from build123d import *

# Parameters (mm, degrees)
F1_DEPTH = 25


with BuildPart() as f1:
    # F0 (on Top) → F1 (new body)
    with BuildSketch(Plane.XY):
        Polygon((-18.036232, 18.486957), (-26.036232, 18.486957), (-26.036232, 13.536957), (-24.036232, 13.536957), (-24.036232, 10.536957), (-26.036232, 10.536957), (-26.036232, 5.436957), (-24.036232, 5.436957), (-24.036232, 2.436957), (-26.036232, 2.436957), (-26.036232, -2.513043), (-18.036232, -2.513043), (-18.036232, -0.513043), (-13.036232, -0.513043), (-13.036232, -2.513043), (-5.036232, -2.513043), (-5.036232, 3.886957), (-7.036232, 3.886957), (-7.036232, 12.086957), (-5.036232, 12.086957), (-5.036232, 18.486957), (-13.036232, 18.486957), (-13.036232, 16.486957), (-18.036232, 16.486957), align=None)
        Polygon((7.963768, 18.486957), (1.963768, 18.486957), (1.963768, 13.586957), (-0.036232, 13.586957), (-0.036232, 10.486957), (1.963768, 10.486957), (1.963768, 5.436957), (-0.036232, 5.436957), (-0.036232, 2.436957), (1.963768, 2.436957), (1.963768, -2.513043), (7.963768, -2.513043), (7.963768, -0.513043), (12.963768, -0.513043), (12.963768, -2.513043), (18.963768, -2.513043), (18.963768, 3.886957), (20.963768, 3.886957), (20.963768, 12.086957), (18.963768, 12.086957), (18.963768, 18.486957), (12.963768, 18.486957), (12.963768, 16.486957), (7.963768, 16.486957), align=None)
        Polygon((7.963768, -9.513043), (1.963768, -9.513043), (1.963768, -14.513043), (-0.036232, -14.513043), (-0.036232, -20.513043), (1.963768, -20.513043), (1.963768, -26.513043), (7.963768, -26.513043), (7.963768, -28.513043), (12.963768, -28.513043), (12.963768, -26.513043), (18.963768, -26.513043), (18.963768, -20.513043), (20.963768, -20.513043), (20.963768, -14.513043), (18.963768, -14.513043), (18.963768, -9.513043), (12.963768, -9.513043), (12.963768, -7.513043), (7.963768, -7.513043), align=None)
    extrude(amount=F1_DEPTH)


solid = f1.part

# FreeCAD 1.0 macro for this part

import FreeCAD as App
import Part
import Sketcher
from FreeCAD import Vector
Q = App.Units.Quantity


def add_polygon(sketch, points):
    """Adds a closed chain of lines whose ends are joined by coincident constraints."""
    first, n = sketch.GeometryCount, len(points)
    for a, b in zip(points, points[1:] + points[:1]):
        sketch.addGeometry(Part.LineSegment(App.Vector(*a, 0), App.Vector(*b, 0)), False)
    for i in range(n):
        sketch.addConstraint(Sketcher.Constraint("Coincident", first + i, 2, first + (i + 1) % n, 1))

doc = App.newDocument("Part")
params = doc.addObject("Spreadsheet::Sheet", "Params")
for row, (alias, value) in enumerate([
    ("sketch1_width", "8 mm"),
    ("sketch1_width2", "2 mm"),
    ("sketch1_width3", "5 mm"),
    ("sketch1_width4", "6 mm"),
    ("sketch1_height", "3 mm"),
    ("pad1_length", "25 mm"),
], start=1):
    params.set(f"A{row}", alias)
    params.set(f"B{row}", "=" + value)
    params.setAlias(f"B{row}", alias)

body = doc.addObject("PartDesign::Body", "Body")
body.AllowCompound = True

sketch1 = body.newObject("Sketcher::SketchObject", "Sketch")
sketch1.AttachmentSupport = (doc.getObject("XY_Plane"), [""])
sketch1.MapMode = "FlatFace"
add_polygon(sketch1, [(-18, 18.5), (-26, 18.5), (-26, 13.5), (-24, 13.5), (-24, 10.5), (-26, 10.5), (-26, 5.4), (-24, 5.4), (-24, 2.4), (-26, 2.4), (-26, -2.5), (-18, -2.5), (-18, -0.5), (-13, -0.5), (-13, -2.5), (-5, -2.5), (-5, 3.9), (-7, 3.9), (-7, 12.1), (-5, 12.1), (-5, 18.5), (-13, 18.5), (-13, 16.5), (-18, 16.5)])
add_polygon(sketch1, [(8, 18.5), (2, 18.5), (2, 13.6), (0, 13.6), (0, 10.5), (2, 10.5), (2, 5.4), (0, 5.4), (0, 2.4), (2, 2.4), (2, -2.5), (8, -2.5), (8, -0.5), (13, -0.5), (13, -2.5), (19, -2.5), (19, 3.9), (21, 3.9), (21, 12.1), (19, 12.1), (19, 18.5), (13, 18.5), (13, 16.5), (8, 16.5)])
add_polygon(sketch1, [(8, -9.5), (2, -9.5), (2, -14.5), (0, -14.5), (0, -20.5), (2, -20.5), (2, -26.5), (8, -26.5), (8, -28.5), (13, -28.5), (13, -26.5), (19, -26.5), (19, -20.5), (21, -20.5), (21, -14.5), (19, -14.5), (19, -9.5), (13, -9.5), (13, -7.5), (8, -7.5)])
sketch1.addConstraint(Sketcher.Constraint("Horizontal", 0))
sketch1.addConstraint(Sketcher.Constraint("Vertical", 1))
sketch1.addConstraint(Sketcher.Constraint("Horizontal", 2))
sketch1.addConstraint(Sketcher.Constraint("Vertical", 3))
sketch1.addConstraint(Sketcher.Constraint("Horizontal", 4))
sketch1.addConstraint(Sketcher.Constraint("Vertical", 5))
sketch1.addConstraint(Sketcher.Constraint("Horizontal", 6))
sketch1.addConstraint(Sketcher.Constraint("Vertical", 7))
sketch1.addConstraint(Sketcher.Constraint("Horizontal", 8))
sketch1.addConstraint(Sketcher.Constraint("Vertical", 9))
sketch1.addConstraint(Sketcher.Constraint("Horizontal", 10))
sketch1.addConstraint(Sketcher.Constraint("Vertical", 11))
sketch1.addConstraint(Sketcher.Constraint("Horizontal", 12))
sketch1.addConstraint(Sketcher.Constraint("Vertical", 13))
sketch1.addConstraint(Sketcher.Constraint("Horizontal", 14))
sketch1.addConstraint(Sketcher.Constraint("Vertical", 15))
sketch1.addConstraint(Sketcher.Constraint("Horizontal", 16))
sketch1.addConstraint(Sketcher.Constraint("Vertical", 17))
sketch1.addConstraint(Sketcher.Constraint("Horizontal", 18))
sketch1.addConstraint(Sketcher.Constraint("Vertical", 19))
sketch1.addConstraint(Sketcher.Constraint("Horizontal", 20))
sketch1.addConstraint(Sketcher.Constraint("Vertical", 21))
sketch1.addConstraint(Sketcher.Constraint("Horizontal", 22))
sketch1.addConstraint(Sketcher.Constraint("Vertical", 23))
sketch1.addConstraint(Sketcher.Constraint("Horizontal", 24))
sketch1.addConstraint(Sketcher.Constraint("Vertical", 25))
sketch1.addConstraint(Sketcher.Constraint("Horizontal", 26))
sketch1.addConstraint(Sketcher.Constraint("Vertical", 27))
sketch1.addConstraint(Sketcher.Constraint("Horizontal", 28))
sketch1.addConstraint(Sketcher.Constraint("Vertical", 29))
sketch1.addConstraint(Sketcher.Constraint("Horizontal", 30))
sketch1.addConstraint(Sketcher.Constraint("Vertical", 31))
sketch1.addConstraint(Sketcher.Constraint("Horizontal", 32))
sketch1.addConstraint(Sketcher.Constraint("Vertical", 33))
sketch1.addConstraint(Sketcher.Constraint("Horizontal", 34))
sketch1.addConstraint(Sketcher.Constraint("Vertical", 35))
sketch1.addConstraint(Sketcher.Constraint("Horizontal", 36))
sketch1.addConstraint(Sketcher.Constraint("Vertical", 37))
sketch1.addConstraint(Sketcher.Constraint("Horizontal", 38))
sketch1.addConstraint(Sketcher.Constraint("Vertical", 39))
sketch1.addConstraint(Sketcher.Constraint("Horizontal", 40))
sketch1.addConstraint(Sketcher.Constraint("Vertical", 41))
sketch1.addConstraint(Sketcher.Constraint("Horizontal", 42))
sketch1.addConstraint(Sketcher.Constraint("Vertical", 43))
sketch1.addConstraint(Sketcher.Constraint("Horizontal", 44))
sketch1.addConstraint(Sketcher.Constraint("Vertical", 45))
sketch1.addConstraint(Sketcher.Constraint("Horizontal", 46))
sketch1.addConstraint(Sketcher.Constraint("Vertical", 47))
sketch1.addConstraint(Sketcher.Constraint("Horizontal", 48))
sketch1.addConstraint(Sketcher.Constraint("Vertical", 49))
sketch1.addConstraint(Sketcher.Constraint("Horizontal", 50))
sketch1.addConstraint(Sketcher.Constraint("Vertical", 51))
sketch1.addConstraint(Sketcher.Constraint("Horizontal", 52))
sketch1.addConstraint(Sketcher.Constraint("Vertical", 53))
sketch1.addConstraint(Sketcher.Constraint("Horizontal", 54))
sketch1.addConstraint(Sketcher.Constraint("Vertical", 55))
sketch1.addConstraint(Sketcher.Constraint("Horizontal", 56))
sketch1.addConstraint(Sketcher.Constraint("Vertical", 57))
sketch1.addConstraint(Sketcher.Constraint("Horizontal", 58))
sketch1.addConstraint(Sketcher.Constraint("Vertical", 59))
sketch1.addConstraint(Sketcher.Constraint("Horizontal", 60))
sketch1.addConstraint(Sketcher.Constraint("Vertical", 61))
sketch1.addConstraint(Sketcher.Constraint("Horizontal", 62))
sketch1.addConstraint(Sketcher.Constraint("Vertical", 63))
sketch1.addConstraint(Sketcher.Constraint("Horizontal", 64))
sketch1.addConstraint(Sketcher.Constraint("Vertical", 65))
sketch1.addConstraint(Sketcher.Constraint("Horizontal", 66))
sketch1.addConstraint(Sketcher.Constraint("Vertical", 67))
sketch1.addConstraint(Sketcher.Constraint("Horizontal", 10, 2, 13, 2))
sketch1.addConstraint(Sketcher.Constraint("Horizontal", 0, 2, 19, 2))
sketch1.addConstraint(Sketcher.Constraint("Horizontal", 23, 2, 24, 2))
sketch1.addConstraint(Sketcher.Constraint("Horizontal", 6, 2, 29, 2))
sketch1.addConstraint(Sketcher.Constraint("Horizontal", 8, 2, 31, 2))
sketch1.addConstraint(Sketcher.Constraint("Horizontal", 14, 2, 33, 2))
sketch1.addConstraint(Sketcher.Constraint("Horizontal", 12, 2, 35, 2))
sketch1.addConstraint(Sketcher.Constraint("Horizontal", 34, 2, 37, 2))
sketch1.addConstraint(Sketcher.Constraint("Horizontal", 16, 2, 39, 2))
sketch1.addConstraint(Sketcher.Constraint("Horizontal", 18, 2, 41, 2))
sketch1.addConstraint(Sketcher.Constraint("Horizontal", 24, 2, 43, 2))
sketch1.addConstraint(Sketcher.Constraint("Horizontal", 22, 2, 45, 2))
sketch1.addConstraint(Sketcher.Constraint("Horizontal", 54, 2, 57, 2))
sketch1.addConstraint(Sketcher.Constraint("Horizontal", 52, 2, 59, 2))
sketch1.addConstraint(Sketcher.Constraint("Horizontal", 50, 2, 61, 2))
sketch1.addConstraint(Sketcher.Constraint("Horizontal", 48, 2, 63, 2))
sketch1.addConstraint(Sketcher.Constraint("Vertical", 1, 2, 4, 2))
sketch1.addConstraint(Sketcher.Constraint("Vertical", 3, 2, 6, 2))
sketch1.addConstraint(Sketcher.Constraint("Vertical", 5, 2, 8, 2))
sketch1.addConstraint(Sketcher.Constraint("Vertical", 15, 2, 18, 2))
sketch1.addConstraint(Sketcher.Constraint("Vertical", 13, 2, 20, 2))
sketch1.addConstraint(Sketcher.Constraint("Vertical", 11, 2, 22, 2))
sketch1.addConstraint(Sketcher.Constraint("Vertical", 25, 2, 28, 2))
sketch1.addConstraint(Sketcher.Constraint("Vertical", 27, 2, 30, 2))
sketch1.addConstraint(Sketcher.Constraint("Vertical", 29, 2, 32, 2))
sketch1.addConstraint(Sketcher.Constraint("Vertical", 39, 2, 42, 2))
sketch1.addConstraint(Sketcher.Constraint("Vertical", 37, 2, 44, 2))
sketch1.addConstraint(Sketcher.Constraint("Vertical", 35, 2, 46, 2))
sketch1.addConstraint(Sketcher.Constraint("Vertical", 33, 2, 48, 2))
sketch1.addConstraint(Sketcher.Constraint("Vertical", 31, 2, 50, 2))
sketch1.addConstraint(Sketcher.Constraint("Vertical", 49, 2, 52, 2))
sketch1.addConstraint(Sketcher.Constraint("Vertical", 47, 2, 54, 2))
sketch1.addConstraint(Sketcher.Constraint("Vertical", 45, 2, 56, 2))
sketch1.addConstraint(Sketcher.Constraint("Vertical", 43, 2, 58, 2))
sketch1.addConstraint(Sketcher.Constraint("Vertical", 41, 2, 60, 2))
sketch1.addConstraint(Sketcher.Constraint("Vertical", 59, 2, 62, 2))
sketch1.addConstraint(Sketcher.Constraint("Vertical", 57, 2, 64, 2))
sketch1.addConstraint(Sketcher.Constraint("Vertical", 55, 2, 66, 2))
sketch1.addConstraint(Sketcher.Constraint("Equal", 10, 14))
sketch1.addConstraint(Sketcher.Constraint("Equal", 8, 16))
sketch1.addConstraint(Sketcher.Constraint("Equal", 18, 26))
sketch1.addConstraint(Sketcher.Constraint("Equal", 22, 36))
sketch1.addConstraint(Sketcher.Constraint("Equal", 34, 38))
sketch1.addConstraint(Sketcher.Constraint("Equal", 32, 40))
sketch1.addConstraint(Sketcher.Constraint("Equal", 3, 7))
sketch1.addConstraint(Sketcher.Constraint("Equal", 1, 9))
sketch1.addConstraint(Sketcher.Constraint("Equal", 62, 11))
sketch1.addConstraint(Sketcher.Constraint("Equal", 15, 19))
sketch1.addConstraint(Sketcher.Constraint("Equal", 13, 21))
sketch1.addConstraint(Sketcher.Constraint("Equal", 66, 49))
sketch1.addConstraint(Sketcher.Constraint("Equal", 64, 51))
sketch1.addConstraint(Sketcher.Constraint("Equal", 51, 53))
sketch1.addConstraint(Sketcher.Constraint("Equal", 47, 55))
sketch1.addConstraint(Sketcher.Constraint("Equal", 57, 65))
sketch1.addConstraint(Sketcher.Constraint("DistanceX", 0, 2, 0, 1, Q("8 mm")))
sketch1.addConstraint(Sketcher.Constraint("DistanceX", 2, 1, 2, 2, Q("2 mm")))
sketch1.addConstraint(Sketcher.Constraint("DistanceX", 12, 1, 12, 2, Q("5 mm")))
sketch1.addConstraint(Sketcher.Constraint("DistanceX", 24, 2, 24, 1, Q("6 mm")))
sketch1.addConstraint(Sketcher.Constraint("DistanceY", 3, 2, 3, 1, Q("3 mm")))
sketch1.addConstraint(Sketcher.Constraint("DistanceY", 5, 2, 5, 1, Q("5.1 mm")))
sketch1.addConstraint(Sketcher.Constraint("DistanceY", 15, 1, 15, 2, Q("6.4 mm")))
sketch1.addConstraint(Sketcher.Constraint("DistanceY", 17, 1, 17, 2, Q("8.2 mm")))
sketch1.addConstraint(Sketcher.Constraint("DistanceY", 25, 2, 25, 1, Q("4.9 mm")))
sketch1.addConstraint(Sketcher.Constraint("DistanceY", 27, 2, 27, 1, Q("3.1 mm")))
sketch1.addConstraint(Sketcher.Constraint("DistanceX", 0, 2, -1, 1, Q("26.036232 mm")))
sketch1.addConstraint(Sketcher.Constraint("DistanceX", -1, 1, 38, 2, Q("18.963768 mm")))
sketch1.addConstraint(Sketcher.Constraint("DistanceY", -1, 1, 0, 2, Q("18.486957 mm")))
sketch1.addConstraint(Sketcher.Constraint("DistanceY", 48, 2, -1, 1, Q("9.513043 mm")))
sketch1.setExpression("Constraints[190]", "Params.sketch1_width")
sketch1.setExpression("Constraints[191]", "Params.sketch1_width2")
sketch1.setExpression("Constraints[192]", "Params.sketch1_width3")
sketch1.setExpression("Constraints[193]", "Params.sketch1_width4")
sketch1.setExpression("Constraints[194]", "Params.sketch1_height")
pad1 = body.newObject("PartDesign::Pad", "Pad")
pad1.Profile = sketch1
pad1.setExpression("Length", "Params.pad1_length")

doc.recompute()
